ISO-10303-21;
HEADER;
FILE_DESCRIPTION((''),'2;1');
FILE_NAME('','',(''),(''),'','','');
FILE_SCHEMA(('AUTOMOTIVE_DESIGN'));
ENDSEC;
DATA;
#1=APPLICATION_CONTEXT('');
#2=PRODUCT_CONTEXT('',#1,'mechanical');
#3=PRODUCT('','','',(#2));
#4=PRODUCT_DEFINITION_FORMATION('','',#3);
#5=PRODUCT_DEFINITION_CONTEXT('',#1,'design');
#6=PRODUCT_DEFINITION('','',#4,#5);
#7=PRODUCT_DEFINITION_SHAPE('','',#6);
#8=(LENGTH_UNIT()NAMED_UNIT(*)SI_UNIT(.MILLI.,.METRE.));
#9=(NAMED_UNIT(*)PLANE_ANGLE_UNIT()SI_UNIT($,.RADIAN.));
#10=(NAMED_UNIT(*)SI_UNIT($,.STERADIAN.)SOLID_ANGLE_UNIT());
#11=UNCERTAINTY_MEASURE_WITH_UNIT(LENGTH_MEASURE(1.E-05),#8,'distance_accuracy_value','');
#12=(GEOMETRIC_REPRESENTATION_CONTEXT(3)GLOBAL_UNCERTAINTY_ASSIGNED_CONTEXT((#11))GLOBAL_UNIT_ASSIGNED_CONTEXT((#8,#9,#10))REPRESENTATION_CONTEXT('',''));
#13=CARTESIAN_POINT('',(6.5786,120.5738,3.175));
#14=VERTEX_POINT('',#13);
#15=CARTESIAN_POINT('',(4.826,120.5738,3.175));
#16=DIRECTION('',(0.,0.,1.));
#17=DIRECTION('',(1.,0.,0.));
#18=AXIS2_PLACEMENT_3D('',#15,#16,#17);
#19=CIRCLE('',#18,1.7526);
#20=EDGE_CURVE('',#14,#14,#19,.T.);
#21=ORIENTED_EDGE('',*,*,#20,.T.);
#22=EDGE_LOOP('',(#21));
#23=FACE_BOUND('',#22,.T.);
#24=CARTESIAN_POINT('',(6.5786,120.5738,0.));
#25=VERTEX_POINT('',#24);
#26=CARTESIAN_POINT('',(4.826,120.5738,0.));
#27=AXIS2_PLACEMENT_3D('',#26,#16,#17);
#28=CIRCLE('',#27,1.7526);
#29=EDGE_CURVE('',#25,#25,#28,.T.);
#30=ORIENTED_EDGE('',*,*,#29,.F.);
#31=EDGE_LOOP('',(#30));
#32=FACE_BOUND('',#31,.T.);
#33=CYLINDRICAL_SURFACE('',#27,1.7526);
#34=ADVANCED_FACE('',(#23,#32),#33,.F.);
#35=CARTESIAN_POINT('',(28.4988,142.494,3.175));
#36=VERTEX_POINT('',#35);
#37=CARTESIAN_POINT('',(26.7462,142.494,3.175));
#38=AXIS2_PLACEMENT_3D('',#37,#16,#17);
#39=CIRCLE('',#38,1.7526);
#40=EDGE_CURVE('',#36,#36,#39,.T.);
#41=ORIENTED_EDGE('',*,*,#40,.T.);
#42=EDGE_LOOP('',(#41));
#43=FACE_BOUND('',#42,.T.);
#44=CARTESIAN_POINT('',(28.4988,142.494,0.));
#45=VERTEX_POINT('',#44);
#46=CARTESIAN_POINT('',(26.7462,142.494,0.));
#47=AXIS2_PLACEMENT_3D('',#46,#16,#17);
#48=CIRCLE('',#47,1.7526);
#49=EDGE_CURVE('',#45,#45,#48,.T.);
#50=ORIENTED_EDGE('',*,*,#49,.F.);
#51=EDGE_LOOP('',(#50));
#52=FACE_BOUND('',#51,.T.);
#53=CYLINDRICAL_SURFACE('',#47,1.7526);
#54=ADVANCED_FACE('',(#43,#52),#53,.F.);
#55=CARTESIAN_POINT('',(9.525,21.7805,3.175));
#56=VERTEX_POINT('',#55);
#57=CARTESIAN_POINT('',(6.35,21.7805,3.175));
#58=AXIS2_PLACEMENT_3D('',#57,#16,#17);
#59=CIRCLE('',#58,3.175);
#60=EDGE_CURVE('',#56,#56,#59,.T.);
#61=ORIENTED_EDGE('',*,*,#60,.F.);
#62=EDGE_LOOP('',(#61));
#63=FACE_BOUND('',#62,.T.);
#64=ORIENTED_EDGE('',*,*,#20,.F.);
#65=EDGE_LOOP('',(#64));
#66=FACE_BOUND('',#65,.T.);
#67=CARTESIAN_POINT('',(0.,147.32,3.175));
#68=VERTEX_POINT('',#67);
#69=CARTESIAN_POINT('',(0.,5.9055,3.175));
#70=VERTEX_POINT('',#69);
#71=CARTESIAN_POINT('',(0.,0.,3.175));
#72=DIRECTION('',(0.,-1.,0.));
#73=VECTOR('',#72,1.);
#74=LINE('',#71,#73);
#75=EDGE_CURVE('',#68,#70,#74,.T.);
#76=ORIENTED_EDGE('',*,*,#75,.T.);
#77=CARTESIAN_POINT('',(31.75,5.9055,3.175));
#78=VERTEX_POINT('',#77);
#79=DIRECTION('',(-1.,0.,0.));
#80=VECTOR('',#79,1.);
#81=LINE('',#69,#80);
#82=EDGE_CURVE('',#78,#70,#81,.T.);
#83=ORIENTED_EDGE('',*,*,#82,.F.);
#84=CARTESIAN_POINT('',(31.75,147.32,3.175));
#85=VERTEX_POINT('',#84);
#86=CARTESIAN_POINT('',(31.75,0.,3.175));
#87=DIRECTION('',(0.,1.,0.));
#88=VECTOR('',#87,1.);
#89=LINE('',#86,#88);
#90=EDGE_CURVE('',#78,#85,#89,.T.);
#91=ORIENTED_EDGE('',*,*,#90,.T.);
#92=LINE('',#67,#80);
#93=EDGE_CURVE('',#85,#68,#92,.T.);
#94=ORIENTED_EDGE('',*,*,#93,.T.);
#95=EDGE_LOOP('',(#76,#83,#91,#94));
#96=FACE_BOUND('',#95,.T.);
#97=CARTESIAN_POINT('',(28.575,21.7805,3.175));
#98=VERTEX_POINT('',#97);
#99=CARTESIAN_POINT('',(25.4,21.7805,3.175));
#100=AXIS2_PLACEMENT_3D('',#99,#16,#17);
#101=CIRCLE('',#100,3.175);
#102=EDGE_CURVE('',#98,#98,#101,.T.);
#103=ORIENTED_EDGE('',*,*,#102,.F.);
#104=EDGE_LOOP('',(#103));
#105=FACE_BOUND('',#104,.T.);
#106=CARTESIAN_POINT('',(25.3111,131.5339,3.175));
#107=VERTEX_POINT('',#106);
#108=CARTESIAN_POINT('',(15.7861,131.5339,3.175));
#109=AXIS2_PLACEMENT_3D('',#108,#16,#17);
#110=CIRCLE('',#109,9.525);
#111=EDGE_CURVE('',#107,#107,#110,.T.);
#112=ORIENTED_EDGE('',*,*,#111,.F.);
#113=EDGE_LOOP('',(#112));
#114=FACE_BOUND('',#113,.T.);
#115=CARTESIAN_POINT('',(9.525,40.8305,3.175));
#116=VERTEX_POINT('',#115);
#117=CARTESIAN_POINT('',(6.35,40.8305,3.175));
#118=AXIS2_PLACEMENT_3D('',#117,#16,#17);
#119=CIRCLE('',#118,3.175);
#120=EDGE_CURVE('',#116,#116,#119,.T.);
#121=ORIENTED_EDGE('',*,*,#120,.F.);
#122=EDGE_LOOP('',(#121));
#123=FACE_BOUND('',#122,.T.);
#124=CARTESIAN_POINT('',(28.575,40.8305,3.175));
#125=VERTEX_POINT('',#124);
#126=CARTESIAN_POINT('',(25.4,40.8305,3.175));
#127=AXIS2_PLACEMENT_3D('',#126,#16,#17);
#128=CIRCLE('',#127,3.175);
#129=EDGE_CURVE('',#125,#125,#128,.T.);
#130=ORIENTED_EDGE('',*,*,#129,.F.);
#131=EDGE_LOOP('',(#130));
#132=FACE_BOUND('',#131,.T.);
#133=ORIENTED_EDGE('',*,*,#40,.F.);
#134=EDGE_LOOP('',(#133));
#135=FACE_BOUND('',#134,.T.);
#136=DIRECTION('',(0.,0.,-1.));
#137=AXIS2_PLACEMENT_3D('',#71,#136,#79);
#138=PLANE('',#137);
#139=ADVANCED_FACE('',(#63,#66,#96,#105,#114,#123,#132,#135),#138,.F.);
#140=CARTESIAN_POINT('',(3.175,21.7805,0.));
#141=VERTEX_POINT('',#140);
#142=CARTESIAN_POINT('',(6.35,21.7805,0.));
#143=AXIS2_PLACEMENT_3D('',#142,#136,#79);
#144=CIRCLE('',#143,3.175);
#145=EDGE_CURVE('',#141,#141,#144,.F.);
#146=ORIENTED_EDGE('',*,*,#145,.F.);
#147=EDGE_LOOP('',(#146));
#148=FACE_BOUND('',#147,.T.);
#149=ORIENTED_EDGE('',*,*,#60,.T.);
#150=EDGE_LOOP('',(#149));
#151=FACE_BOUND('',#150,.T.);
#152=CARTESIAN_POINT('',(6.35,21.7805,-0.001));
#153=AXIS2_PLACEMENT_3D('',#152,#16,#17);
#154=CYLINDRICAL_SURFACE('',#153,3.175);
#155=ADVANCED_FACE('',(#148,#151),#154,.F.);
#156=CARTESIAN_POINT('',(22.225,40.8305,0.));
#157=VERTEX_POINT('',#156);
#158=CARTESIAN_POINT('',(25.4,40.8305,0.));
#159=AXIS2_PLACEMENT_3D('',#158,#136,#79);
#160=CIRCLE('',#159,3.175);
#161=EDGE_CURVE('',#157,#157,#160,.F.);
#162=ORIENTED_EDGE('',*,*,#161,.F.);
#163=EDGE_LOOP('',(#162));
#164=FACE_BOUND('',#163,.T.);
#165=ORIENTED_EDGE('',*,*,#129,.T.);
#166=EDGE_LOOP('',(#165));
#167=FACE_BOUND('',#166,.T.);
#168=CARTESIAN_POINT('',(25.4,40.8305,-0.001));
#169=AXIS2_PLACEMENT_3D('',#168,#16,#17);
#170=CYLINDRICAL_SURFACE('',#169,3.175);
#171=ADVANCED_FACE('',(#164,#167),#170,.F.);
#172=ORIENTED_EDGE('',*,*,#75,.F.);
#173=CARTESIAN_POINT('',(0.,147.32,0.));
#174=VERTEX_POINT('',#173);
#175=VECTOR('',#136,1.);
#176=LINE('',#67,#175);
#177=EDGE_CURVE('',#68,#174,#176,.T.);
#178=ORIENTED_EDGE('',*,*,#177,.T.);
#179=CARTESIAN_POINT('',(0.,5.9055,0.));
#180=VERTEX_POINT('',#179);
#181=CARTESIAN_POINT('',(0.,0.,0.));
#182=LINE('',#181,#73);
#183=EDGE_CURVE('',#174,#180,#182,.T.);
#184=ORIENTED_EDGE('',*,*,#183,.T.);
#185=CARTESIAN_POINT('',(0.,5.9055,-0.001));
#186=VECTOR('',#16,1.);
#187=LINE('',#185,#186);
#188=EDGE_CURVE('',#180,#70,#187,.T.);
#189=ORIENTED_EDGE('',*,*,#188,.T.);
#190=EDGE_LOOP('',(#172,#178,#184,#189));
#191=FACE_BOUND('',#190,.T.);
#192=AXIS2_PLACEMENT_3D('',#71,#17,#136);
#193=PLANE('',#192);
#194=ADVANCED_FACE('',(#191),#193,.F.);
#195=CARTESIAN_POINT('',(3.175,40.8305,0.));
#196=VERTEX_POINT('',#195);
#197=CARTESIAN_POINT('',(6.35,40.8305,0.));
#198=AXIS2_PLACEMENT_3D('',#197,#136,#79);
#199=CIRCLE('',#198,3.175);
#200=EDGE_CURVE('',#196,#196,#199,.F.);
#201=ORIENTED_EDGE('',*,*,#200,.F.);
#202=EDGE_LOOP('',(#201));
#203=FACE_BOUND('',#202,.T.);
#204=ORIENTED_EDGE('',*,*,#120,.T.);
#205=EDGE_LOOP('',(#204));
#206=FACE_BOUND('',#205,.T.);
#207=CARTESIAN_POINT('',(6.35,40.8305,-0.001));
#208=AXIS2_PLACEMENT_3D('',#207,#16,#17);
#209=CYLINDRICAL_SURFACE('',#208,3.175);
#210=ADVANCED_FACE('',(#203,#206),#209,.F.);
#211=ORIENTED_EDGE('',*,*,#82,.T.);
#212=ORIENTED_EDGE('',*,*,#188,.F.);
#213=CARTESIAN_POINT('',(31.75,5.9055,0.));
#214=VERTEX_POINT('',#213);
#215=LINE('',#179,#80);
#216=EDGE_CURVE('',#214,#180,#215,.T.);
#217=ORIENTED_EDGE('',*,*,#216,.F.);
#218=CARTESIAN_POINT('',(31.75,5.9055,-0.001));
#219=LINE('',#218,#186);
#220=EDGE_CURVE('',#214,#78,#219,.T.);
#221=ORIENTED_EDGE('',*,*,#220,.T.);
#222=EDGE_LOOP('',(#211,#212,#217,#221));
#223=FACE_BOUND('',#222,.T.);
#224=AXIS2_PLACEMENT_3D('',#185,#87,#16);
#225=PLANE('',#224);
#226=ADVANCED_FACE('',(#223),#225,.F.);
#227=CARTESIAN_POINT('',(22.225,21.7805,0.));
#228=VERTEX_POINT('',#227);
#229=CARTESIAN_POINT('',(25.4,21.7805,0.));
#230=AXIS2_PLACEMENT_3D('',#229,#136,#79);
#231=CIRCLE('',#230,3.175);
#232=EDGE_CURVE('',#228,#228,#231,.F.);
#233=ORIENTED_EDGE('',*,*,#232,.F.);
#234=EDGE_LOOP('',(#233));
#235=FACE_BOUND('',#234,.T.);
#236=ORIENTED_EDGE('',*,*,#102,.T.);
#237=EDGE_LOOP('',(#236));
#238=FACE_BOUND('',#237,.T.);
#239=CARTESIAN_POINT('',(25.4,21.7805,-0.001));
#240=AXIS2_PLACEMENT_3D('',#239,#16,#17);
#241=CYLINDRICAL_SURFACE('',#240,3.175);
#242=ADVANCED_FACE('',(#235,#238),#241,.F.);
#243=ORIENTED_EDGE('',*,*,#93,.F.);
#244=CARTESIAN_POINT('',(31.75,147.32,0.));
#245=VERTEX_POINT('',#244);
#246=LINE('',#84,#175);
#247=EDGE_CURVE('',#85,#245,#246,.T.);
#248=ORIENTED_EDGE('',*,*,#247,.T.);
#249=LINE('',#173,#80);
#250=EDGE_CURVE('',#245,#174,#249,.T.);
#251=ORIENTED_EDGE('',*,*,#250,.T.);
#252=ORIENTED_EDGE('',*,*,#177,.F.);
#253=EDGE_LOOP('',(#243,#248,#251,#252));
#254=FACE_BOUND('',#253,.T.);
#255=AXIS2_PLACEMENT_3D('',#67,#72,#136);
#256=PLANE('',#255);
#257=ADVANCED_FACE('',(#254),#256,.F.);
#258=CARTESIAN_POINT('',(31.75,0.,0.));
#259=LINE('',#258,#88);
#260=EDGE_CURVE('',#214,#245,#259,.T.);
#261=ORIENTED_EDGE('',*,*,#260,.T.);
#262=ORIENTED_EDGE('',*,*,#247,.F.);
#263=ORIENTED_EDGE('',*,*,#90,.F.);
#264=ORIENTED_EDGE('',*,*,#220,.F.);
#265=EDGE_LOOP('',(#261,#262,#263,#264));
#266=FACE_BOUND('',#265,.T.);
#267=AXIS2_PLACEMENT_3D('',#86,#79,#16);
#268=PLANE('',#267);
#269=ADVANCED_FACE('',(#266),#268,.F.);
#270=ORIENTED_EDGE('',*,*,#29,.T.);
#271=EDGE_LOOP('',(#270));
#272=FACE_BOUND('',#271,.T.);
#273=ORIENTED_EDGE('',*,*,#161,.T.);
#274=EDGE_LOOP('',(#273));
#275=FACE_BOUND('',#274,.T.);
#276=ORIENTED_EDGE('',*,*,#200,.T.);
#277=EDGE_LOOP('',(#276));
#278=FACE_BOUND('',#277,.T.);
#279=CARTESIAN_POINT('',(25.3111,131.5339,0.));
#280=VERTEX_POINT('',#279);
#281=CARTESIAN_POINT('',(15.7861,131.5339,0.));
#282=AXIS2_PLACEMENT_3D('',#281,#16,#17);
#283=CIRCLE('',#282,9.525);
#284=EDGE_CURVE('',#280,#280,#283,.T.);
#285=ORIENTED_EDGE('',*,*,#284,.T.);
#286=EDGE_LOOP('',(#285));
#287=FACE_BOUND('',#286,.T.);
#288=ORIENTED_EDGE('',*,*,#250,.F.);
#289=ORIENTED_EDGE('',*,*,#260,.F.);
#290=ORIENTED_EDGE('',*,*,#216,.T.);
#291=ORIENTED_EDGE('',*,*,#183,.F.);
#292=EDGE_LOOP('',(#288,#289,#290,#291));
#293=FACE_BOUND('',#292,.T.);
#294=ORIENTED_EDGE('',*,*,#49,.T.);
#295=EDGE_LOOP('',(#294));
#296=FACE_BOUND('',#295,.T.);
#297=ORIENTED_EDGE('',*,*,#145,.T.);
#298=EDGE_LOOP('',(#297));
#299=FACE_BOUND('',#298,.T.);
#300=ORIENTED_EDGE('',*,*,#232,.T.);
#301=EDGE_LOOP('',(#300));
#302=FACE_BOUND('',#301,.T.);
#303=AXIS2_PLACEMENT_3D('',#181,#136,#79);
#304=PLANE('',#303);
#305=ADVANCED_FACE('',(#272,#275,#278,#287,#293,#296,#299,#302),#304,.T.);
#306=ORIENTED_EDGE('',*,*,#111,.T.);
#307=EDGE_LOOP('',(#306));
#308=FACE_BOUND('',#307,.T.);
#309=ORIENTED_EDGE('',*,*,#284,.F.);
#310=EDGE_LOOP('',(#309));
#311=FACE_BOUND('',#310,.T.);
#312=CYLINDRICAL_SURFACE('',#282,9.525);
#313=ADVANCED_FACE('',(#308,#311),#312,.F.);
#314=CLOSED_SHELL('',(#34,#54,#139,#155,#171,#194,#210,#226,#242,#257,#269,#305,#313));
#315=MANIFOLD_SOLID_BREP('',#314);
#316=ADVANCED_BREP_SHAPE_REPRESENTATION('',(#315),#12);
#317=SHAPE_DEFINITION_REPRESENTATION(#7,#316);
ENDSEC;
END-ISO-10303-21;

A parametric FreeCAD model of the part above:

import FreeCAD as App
import Part
import Sketcher
from FreeCAD import Vector
Q = App.Units.Quantity

doc = App.newDocument("Part")
body = doc.addObject("PartDesign::Body", "Body")

# Sketch on XY plane
sketch1 = body.newObject("Sketcher::SketchObject", "Sketch")
sketch1.AttachmentSupport = (doc.getObject("XY_Plane"), [""])
sketch1.MapMode = "FlatFace"
sketch1.addGeometry([
    Part.LineSegment(Vector(0, 147, 0), Vector(0, 0, 0)),
    Part.LineSegment(Vector(0, 0, 0), Vector(32, 0, 0)),
    Part.LineSegment(Vector(32, 0, 0), Vector(32, 147, 0)),
    Part.LineSegment(Vector(32, 147, 0), Vector(0, 147, 0)),
], False)
sketch1.addConstraint([
    Sketcher.Constraint("Coincident", 0, 2, 1, 1),
    Sketcher.Constraint("Coincident", 1, 2, 2, 1),
    Sketcher.Constraint("Coincident", 2, 2, 3, 1),
    Sketcher.Constraint("Coincident", 3, 2, 0, 1),
    Sketcher.Constraint("Vertical", 0),
    Sketcher.Constraint("Horizontal", 1),
    Sketcher.Constraint("Vertical", 2),
    Sketcher.Constraint("Horizontal", 3),
    Sketcher.Constraint("Coincident", 0, 2, -1, 1),
    Sketcher.Constraint("DistanceY", 0, 2, 0, 1, Q("5.8 in")),
    Sketcher.Constraint("DistanceX", 1, 1, 1, 2, Q("1.25 in")),
])
pad1 = body.newObject("PartDesign::Pad", "Pad")
pad1.Profile = sketch1
pad1.Length = Q("0.125 in")

# Sketch on XY plane
sketch2 = body.newObject("Sketcher::SketchObject", "Sketch001")
sketch2.AttachmentSupport = (doc.getObject("XY_Plane"), [""])
sketch2.MapMode = "FlatFace"
sketch2.AttachmentOffset = App.Placement(Vector(0, 0, 0.125 * 25.4), App.Rotation())
sketch2.addGeometry([
    Part.LineSegment(Vector(0, 6, 0), Vector(0, 0, 0)),
    Part.LineSegment(Vector(0, 0, 0), Vector(32, 0, 0)),
    Part.LineSegment(Vector(32, 0, 0), Vector(32, 6, 0)),
    Part.LineSegment(Vector(32, 6, 0), Vector(0, 6, 0)),
], False)
sketch2.addConstraint([
    Sketcher.Constraint("Coincident", 0, 2, 1, 1),
    Sketcher.Constraint("Coincident", 1, 2, 2, 1),
    Sketcher.Constraint("Coincident", 2, 2, 3, 1),
    Sketcher.Constraint("Coincident", 3, 2, 0, 1),
    Sketcher.Constraint("Vertical", 0),
    Sketcher.Constraint("Horizontal", 1),
    Sketcher.Constraint("Vertical", 2),
    Sketcher.Constraint("Horizontal", 3),
    Sketcher.Constraint("Coincident", 0, 2, -1, 1),
    Sketcher.Constraint("DistanceX", 1, 1, 1, 2, Q("1.25 in")),
    Sketcher.Constraint("DistanceY", 0, 2, 0, 1, Q("0.23 in")),
])
pocket1 = body.newObject("PartDesign::Pocket", "Pocket")
pocket1.Profile = sketch2
pocket1.Type = "UpToFirst"

# Sketch on XY plane
sketch3 = body.newObject("Sketcher::SketchObject", "Sketch002")
sketch3.AttachmentSupport = (doc.getObject("XY_Plane"), [""])
sketch3.MapMode = "FlatFace"
sketch3.AttachmentOffset = App.Placement(Vector(0, 0, 0.125 * 25.4), App.Rotation())
sketch3.addGeometry([
    Part.LineSegment(Vector(0, 5.91, 0), Vector(0, 5.84, 0)),
    Part.LineSegment(Vector(0, 5.84, 0), Vector(31.75, 5.84, 0)),
    Part.LineSegment(Vector(31.75, 5.84, 0), Vector(31.75, 5.91, 0)),
    Part.LineSegment(Vector(31.75, 5.91, 0), Vector(0, 5.91, 0)),
], False)
sketch3.addConstraint([
    Sketcher.Constraint("Coincident", 0, 2, 1, 1),
    Sketcher.Constraint("Coincident", 1, 2, 2, 1),
    Sketcher.Constraint("Coincident", 2, 2, 3, 1),
    Sketcher.Constraint("Coincident", 3, 2, 0, 1),
    Sketcher.Constraint("Vertical", 0),
    Sketcher.Constraint("Horizontal", 1),
    Sketcher.Constraint("Vertical", 2),
    Sketcher.Constraint("Horizontal", 3),
    Sketcher.Constraint("PointOnObject", 0, 2, -2),
    Sketcher.Constraint("DistanceX", 1, 1, 1, 2, Q("1.25 in")),
    Sketcher.Constraint("DistanceY", -1, 1, 0, 2, Q("0.23 in")),
    Sketcher.Constraint("DistanceY", 0, 2, 0, 1, Q("0.0025 in")),
])
pocket2 = body.newObject("PartDesign::Pocket", "Pocket001")
pocket2.Profile = sketch3
pocket2.Type = "UpToFirst"

# Sketch on XY plane
sketch4 = body.newObject("Sketcher::SketchObject", "Sketch003")
sketch4.AttachmentSupport = (doc.getObject("XY_Plane"), [""])
sketch4.MapMode = "FlatFace"
sketch4.AttachmentOffset = App.Placement(Vector(0, 0, 0.125 * 25.4), App.Rotation())
sketch4.addGeometry(Part.Circle(Vector(25.4, 40.8, 0), Vector(0, 0, 1), 3.2), False)
sketch4.addConstraint([
    Sketcher.Constraint("Diameter", 0, Q("0.25 in")),
    Sketcher.Constraint("DistanceX", -1, 1, 0, 3, Q("1 in")),
    Sketcher.Constraint("DistanceY", -1, 1, 0, 3, Q("1.6075 in")),
])
pocket3 = body.newObject("PartDesign::Pocket", "Pocket002")
pocket3.Profile = sketch4
pocket3.Type = "UpToFirst"

# Sketch on XY plane
sketch5 = body.newObject("Sketcher::SketchObject", "Sketch004")
sketch5.AttachmentSupport = (doc.getObject("XY_Plane"), [""])
sketch5.MapMode = "FlatFace"
sketch5.AttachmentOffset = App.Placement(Vector(0, 0, 0.125 * 25.4), App.Rotation())
sketch5.addGeometry(Part.Circle(Vector(6.3, 40.8, 0), Vector(0, 0, 1), 3.2), False)
sketch5.addConstraint([
    Sketcher.Constraint("Diameter", 0, Q("0.25 in")),
    Sketcher.Constraint("DistanceX", -1, 1, 0, 3, Q("0.25 in")),
    Sketcher.Constraint("DistanceY", -1, 1, 0, 3, Q("1.6075 in")),
])
pocket4 = body.newObject("PartDesign::Pocket", "Pocket003")
pocket4.Profile = sketch5
pocket4.Type = "UpToFirst"

# Sketch on XY plane
sketch6 = body.newObject("Sketcher::SketchObject", "Sketch005")
sketch6.AttachmentSupport = (doc.getObject("XY_Plane"), [""])
sketch6.MapMode = "FlatFace"
sketch6.AttachmentOffset = App.Placement(Vector(0, 0, 0.125 * 25.4), App.Rotation())
sketch6.addGeometry(Part.Circle(Vector(6.3, 21.8, 0), Vector(0, 0, 1), 3.2), False)
sketch6.addConstraint([
    Sketcher.Constraint("Diameter", 0, Q("0.25 in")),
    Sketcher.Constraint("DistanceX", -1, 1, 0, 3, Q("0.25 in")),
    Sketcher.Constraint("DistanceY", -1, 1, 0, 3, Q("0.8575 in")),
])
pocket5 = body.newObject("PartDesign::Pocket", "Pocket004")
pocket5.Profile = sketch6
pocket5.Type = "UpToFirst"

# Sketch on XY plane
sketch7 = body.newObject("Sketcher::SketchObject", "Sketch006")
sketch7.AttachmentSupport = (doc.getObject("XY_Plane"), [""])
sketch7.MapMode = "FlatFace"
sketch7.AttachmentOffset = App.Placement(Vector(0, 0, 0.125 * 25.4), App.Rotation())
sketch7.addGeometry(Part.Circle(Vector(25.4, 21.8, 0), Vector(0, 0, 1), 3.2), False)
sketch7.addConstraint([
    Sketcher.Constraint("Diameter", 0, Q("0.25 in")),
    Sketcher.Constraint("DistanceX", -1, 1, 0, 3, Q("1 in")),
    Sketcher.Constraint("DistanceY", -1, 1, 0, 3, Q("0.8575 in")),
])
pocket6 = body.newObject("PartDesign::Pocket", "Pocket005")
pocket6.Profile = sketch7
pocket6.Type = "UpToFirst"

# Sketch on XY plane
sketch8 = body.newObject("Sketcher::SketchObject", "Sketch007")
sketch8.AttachmentSupport = (doc.getObject("XY_Plane"), [""])
sketch8.MapMode = "FlatFace"
sketch8.AttachmentOffset = App.Placement(Vector(0, 0, 0.125 * 25.4), App.Rotation())
sketch8.addGeometry([
    Part.Circle(Vector(15.8, 131.5, 0), Vector(0, 0, 1), 9.5),
    Part.Circle(Vector(4.8, 120.6, 0), Vector(0, 0, 1), 1.8),
    Part.Circle(Vector(26.7, 142.5, 0), Vector(0, 0, 1), 1.8),
], False)
sketch8.addConstraint([
    Sketcher.Constraint("Equal", 1, 2),
    Sketcher.Constraint("Diameter", 0, Q("0.75 in")),
    Sketcher.Constraint("Diameter", 1, Q("0.138 in")),
    Sketcher.Constraint("DistanceX", -1, 1, 1, 3, Q("0.19 in")),
    Sketcher.Constraint("DistanceY", -1, 1, 2, 3, Q("5.61 in")),
    Sketcher.Constraint("DistanceY", -1, 1, 1, 3, Q("4.747 in")),
    Sketcher.Constraint("DistanceX", -1, 1, 2, 3, Q("1.053 in")),
    Sketcher.Constraint("DistanceX", -1, 1, 0, 3, Q("0.6215 in")),
    Sketcher.Constraint("DistanceY", -1, 1, 0, 3, Q("5.1785 in")),
])
pocket7 = body.newObject("PartDesign::Pocket", "Pocket006")
pocket7.Profile = sketch8
pocket7.Type = "ThroughAll"

doc.recompute()
